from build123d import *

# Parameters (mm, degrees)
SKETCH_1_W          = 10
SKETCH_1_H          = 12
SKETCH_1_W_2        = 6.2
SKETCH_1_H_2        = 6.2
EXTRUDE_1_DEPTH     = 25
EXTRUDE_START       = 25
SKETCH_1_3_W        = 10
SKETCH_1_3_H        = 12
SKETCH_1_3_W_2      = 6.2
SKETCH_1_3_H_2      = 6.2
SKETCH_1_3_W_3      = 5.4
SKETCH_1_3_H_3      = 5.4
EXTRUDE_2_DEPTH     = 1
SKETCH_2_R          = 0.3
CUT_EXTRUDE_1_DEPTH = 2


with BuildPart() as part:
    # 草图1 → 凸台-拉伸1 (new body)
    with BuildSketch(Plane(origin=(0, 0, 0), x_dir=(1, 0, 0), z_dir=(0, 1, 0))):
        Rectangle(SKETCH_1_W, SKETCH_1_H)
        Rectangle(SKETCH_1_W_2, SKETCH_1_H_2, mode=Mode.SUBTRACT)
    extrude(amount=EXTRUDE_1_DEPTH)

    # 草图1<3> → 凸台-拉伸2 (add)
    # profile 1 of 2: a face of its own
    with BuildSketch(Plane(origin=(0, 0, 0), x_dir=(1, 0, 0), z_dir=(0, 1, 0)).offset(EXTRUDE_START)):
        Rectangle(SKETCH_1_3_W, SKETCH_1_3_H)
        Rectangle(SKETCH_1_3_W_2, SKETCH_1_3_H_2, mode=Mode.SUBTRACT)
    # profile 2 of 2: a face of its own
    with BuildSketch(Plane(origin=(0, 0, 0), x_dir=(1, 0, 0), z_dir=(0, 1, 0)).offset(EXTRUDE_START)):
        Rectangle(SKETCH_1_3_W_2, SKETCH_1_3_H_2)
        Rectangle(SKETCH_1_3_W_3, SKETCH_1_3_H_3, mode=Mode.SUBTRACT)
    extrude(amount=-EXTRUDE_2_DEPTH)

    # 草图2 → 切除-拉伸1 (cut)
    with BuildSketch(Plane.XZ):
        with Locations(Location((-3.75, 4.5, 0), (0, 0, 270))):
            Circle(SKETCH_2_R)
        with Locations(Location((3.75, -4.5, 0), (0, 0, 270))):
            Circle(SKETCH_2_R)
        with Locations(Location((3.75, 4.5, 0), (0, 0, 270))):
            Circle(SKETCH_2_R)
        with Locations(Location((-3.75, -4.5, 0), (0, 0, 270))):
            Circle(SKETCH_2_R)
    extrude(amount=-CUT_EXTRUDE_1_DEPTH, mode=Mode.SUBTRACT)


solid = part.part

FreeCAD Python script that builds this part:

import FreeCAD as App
import Part
import Sketcher
from FreeCAD import Vector

doc = App.newDocument("Part")
params = doc.addObject("Spreadsheet::Sheet", "Params")
for row, (alias, value) in enumerate([
    ("sketch1_width", "10 mm"),
    ("sketch1_height", "12 mm"),
    ("sketch1_width2", "6.2 mm"),
    ("pad1_length", "25 mm"),
    ("sketch2_width", "10 mm"),
    ("sketch2_height", "12 mm"),
    ("sketch2_width2", "5.4 mm"),
    ("pad2_length", "1 mm"),
    ("sketch3_diameter", "0.6 mm"),
    ("pocket1_length", "2 mm"),
], start=1):
    params.set(f"A{row}", alias)
    params.set(f"B{row}", "=" + value)
    params.setAlias(f"B{row}", alias)

body = doc.addObject("PartDesign::Body", "Body")

sketch1 = doc.addObject("Sketcher::SketchObject", "Sketch")
body.addObject(sketch1)
sketch1.AttachmentSupport = (doc.XZ_Plane, [""])
sketch1.MapMode = "FlatFace"
sketch1.addGeometry(Part.LineSegment(Vector(-5, -6, 0), Vector(-5, 6, 0)), False)
sketch1.addGeometry(Part.LineSegment(Vector(-5, 6, 0), Vector(5, 6, 0)), False)
sketch1.addGeometry(Part.LineSegment(Vector(5, 6, 0), Vector(5, -6, 0)), False)
sketch1.addGeometry(Part.LineSegment(Vector(5, -6, 0), Vector(-5, -6, 0)), False)
sketch1.addGeometry(Part.LineSegment(Vector(3.1, 3.1, 0), Vector(-3.1, 3.1, 0)), False)
sketch1.addGeometry(Part.LineSegment(Vector(-3.1, 3.1, 0), Vector(-3.1, -3.1, 0)), False)
sketch1.addGeometry(Part.LineSegment(Vector(-3.1, -3.1, 0), Vector(3.1, -3.1, 0)), False)
sketch1.addGeometry(Part.LineSegment(Vector(3.1, -3.1, 0), Vector(3.1, 3.1, 0)), False)
sketch1.addConstraint(Sketcher.Constraint("Coincident", 0, 2, 1, 1))
sketch1.addConstraint(Sketcher.Constraint("Coincident", 1, 2, 2, 1))
sketch1.addConstraint(Sketcher.Constraint("Coincident", 2, 2, 3, 1))
sketch1.addConstraint(Sketcher.Constraint("Coincident", 3, 2, 0, 1))
sketch1.addConstraint(Sketcher.Constraint("Coincident", 4, 2, 5, 1))
sketch1.addConstraint(Sketcher.Constraint("Coincident", 5, 2, 6, 1))
sketch1.addConstraint(Sketcher.Constraint("Coincident", 6, 2, 7, 1))
sketch1.addConstraint(Sketcher.Constraint("Coincident", 7, 2, 4, 1))
sketch1.addConstraint(Sketcher.Constraint("Vertical", 0))
sketch1.addConstraint(Sketcher.Constraint("Horizontal", 1))
sketch1.addConstraint(Sketcher.Constraint("Vertical", 2))
sketch1.addConstraint(Sketcher.Constraint("Horizontal", 3))
sketch1.addConstraint(Sketcher.Constraint("Horizontal", 4))
sketch1.addConstraint(Sketcher.Constraint("Vertical", 5))
sketch1.addConstraint(Sketcher.Constraint("Horizontal", 6))
sketch1.addConstraint(Sketcher.Constraint("Vertical", 7))
sketch1.addConstraint(Sketcher.Constraint("Symmetric", 0, 2, 2, 2, -1, 1))
sketch1.addConstraint(Sketcher.Constraint("Symmetric", 4, 2, 6, 2, -1, 1))
sketch1.addConstraint(Sketcher.Constraint("Equal", 6, 5))
sketch1.addConstraint(Sketcher.Constraint("DistanceX", 1, 1, 1, 2, 10.0))
sketch1.addConstraint(Sketcher.Constraint("DistanceY", 0, 1, 0, 2, 12.0))
sketch1.addConstraint(Sketcher.Constraint("DistanceX", 4, 2, 4, 1, 6.2))
sketch1.setExpression("Constraints[19]", "Params.sketch1_width")
sketch1.setExpression("Constraints[20]", "Params.sketch1_height")
sketch1.setExpression("Constraints[21]", "Params.sketch1_width2")
pad1 = doc.addObject("PartDesign::Pad", "Pad")
body.addObject(pad1)
pad1.Profile = sketch1
pad1.setExpression("Length", "Params.pad1_length")
pad1.Reversed = True

sketch2 = doc.addObject("Sketcher::SketchObject", "Sketch001")
body.addObject(sketch2)
sketch2.AttachmentSupport = (doc.XZ_Plane, [""])
sketch2.MapMode = "FlatFace"
sketch2.AttachmentOffset = App.Placement(Vector(0, 0, -25), App.Rotation())
sketch2.addGeometry(Part.LineSegment(Vector(-5, -6, 0), Vector(-5, 6, 0)), False)
sketch2.addGeometry(Part.LineSegment(Vector(-5, 6, 0), Vector(5, 6, 0)), False)
sketch2.addGeometry(Part.LineSegment(Vector(5, 6, 0), Vector(5, -6, 0)), False)
sketch2.addGeometry(Part.LineSegment(Vector(5, -6, 0), Vector(-5, -6, 0)), False)
sketch2.addGeometry(Part.LineSegment(Vector(2.7, 2.7, 0), Vector(-2.7, 2.7, 0)), False)
sketch2.addGeometry(Part.LineSegment(Vector(-2.7, 2.7, 0), Vector(-2.7, -2.7, 0)), False)
sketch2.addGeometry(Part.LineSegment(Vector(-2.7, -2.7, 0), Vector(2.7, -2.7, 0)), False)
sketch2.addGeometry(Part.LineSegment(Vector(2.7, -2.7, 0), Vector(2.7, 2.7, 0)), False)
sketch2.addConstraint(Sketcher.Constraint("Coincident", 0, 2, 1, 1))
sketch2.addConstraint(Sketcher.Constraint("Coincident", 1, 2, 2, 1))
sketch2.addConstraint(Sketcher.Constraint("Coincident", 2, 2, 3, 1))
sketch2.addConstraint(Sketcher.Constraint("Coincident", 3, 2, 0, 1))
sketch2.addConstraint(Sketcher.Constraint("Coincident", 4, 2, 5, 1))
sketch2.addConstraint(Sketcher.Constraint("Coincident", 5, 2, 6, 1))
sketch2.addConstraint(Sketcher.Constraint("Coincident", 6, 2, 7, 1))
sketch2.addConstraint(Sketcher.Constraint("Coincident", 7, 2, 4, 1))
sketch2.addConstraint(Sketcher.Constraint("Vertical", 0))
sketch2.addConstraint(Sketcher.Constraint("Horizontal", 1))
sketch2.addConstraint(Sketcher.Constraint("Vertical", 2))
sketch2.addConstraint(Sketcher.Constraint("Horizontal", 3))
sketch2.addConstraint(Sketcher.Constraint("Horizontal", 4))
sketch2.addConstraint(Sketcher.Constraint("Vertical", 5))
sketch2.addConstraint(Sketcher.Constraint("Horizontal", 6))
sketch2.addConstraint(Sketcher.Constraint("Vertical", 7))
sketch2.addConstraint(Sketcher.Constraint("Symmetric", 0, 2, 2, 2, -1, 1))
sketch2.addConstraint(Sketcher.Constraint("Symmetric", 4, 2, 6, 2, -1, 1))
sketch2.addConstraint(Sketcher.Constraint("Equal", 6, 5))
sketch2.addConstraint(Sketcher.Constraint("DistanceX", 1, 1, 1, 2, 10.0))
sketch2.addConstraint(Sketcher.Constraint("DistanceY", 0, 1, 0, 2, 12.0))
sketch2.addConstraint(Sketcher.Constraint("DistanceX", 4, 2, 4, 1, 5.4))
sketch2.setExpression("Constraints[19]", "Params.sketch2_width")
sketch2.setExpression("Constraints[20]", "Params.sketch2_height")
sketch2.setExpression("Constraints[21]", "Params.sketch2_width2")
pad2 = doc.addObject("PartDesign::Pad", "Pad001")
body.addObject(pad2)
pad2.Profile = sketch2
pad2.setExpression("Length", "Params.pad2_length")

sketch3 = doc.addObject("Sketcher::SketchObject", "Sketch002")
body.addObject(sketch3)
sketch3.AttachmentSupport = (doc.XZ_Plane, [""])
sketch3.MapMode = "FlatFace"
sketch3.addGeometry(Part.Circle(Vector(-3.75, 4.5, 0), Vector(0, 0, 1), 0.3), False)
sketch3.addGeometry(Part.Circle(Vector(3.75, -4.5, 0), Vector(0, 0, 1), 0.3), False)
sketch3.addGeometry(Part.Circle(Vector(3.75, 4.5, 0), Vector(0, 0, 1), 0.3), False)
sketch3.addGeometry(Part.Circle(Vector(-3.75, -4.5, 0), Vector(0, 0, 1), 0.3), False)
sketch3.addConstraint(Sketcher.Constraint("Equal", 0, 1))
sketch3.addConstraint(Sketcher.Constraint("Equal", 1, 2))
sketch3.addConstraint(Sketcher.Constraint("Equal", 2, 3))
sketch3.addConstraint(Sketcher.Constraint("Symmetric", 0, 3, 1, 3, -1, 1))
sketch3.addConstraint(Sketcher.Constraint("Symmetric", 2, 3, 3, 3, -1, 1))
sketch3.addConstraint(Sketcher.Constraint("Symmetric", 0, 3, 2, 3, -2))
sketch3.addConstraint(Sketcher.Constraint("Diameter", 0, 0.6))
sketch3.addConstraint(Sketcher.Constraint("DistanceY", 1, 3, 0, 3, 9.0))
sketch3.addConstraint(Sketcher.Constraint("DistanceX", 0, 3, 1, 3, 7.5))
sketch3.setExpression("Constraints[6]", "Params.sketch3_diameter")
pocket1 = doc.addObject("PartDesign::Pocket", "Pocket")
body.addObject(pocket1)
pocket1.Profile = sketch3
pocket1.setExpression("Length", "Params.pocket1_length")

doc.recompute()
